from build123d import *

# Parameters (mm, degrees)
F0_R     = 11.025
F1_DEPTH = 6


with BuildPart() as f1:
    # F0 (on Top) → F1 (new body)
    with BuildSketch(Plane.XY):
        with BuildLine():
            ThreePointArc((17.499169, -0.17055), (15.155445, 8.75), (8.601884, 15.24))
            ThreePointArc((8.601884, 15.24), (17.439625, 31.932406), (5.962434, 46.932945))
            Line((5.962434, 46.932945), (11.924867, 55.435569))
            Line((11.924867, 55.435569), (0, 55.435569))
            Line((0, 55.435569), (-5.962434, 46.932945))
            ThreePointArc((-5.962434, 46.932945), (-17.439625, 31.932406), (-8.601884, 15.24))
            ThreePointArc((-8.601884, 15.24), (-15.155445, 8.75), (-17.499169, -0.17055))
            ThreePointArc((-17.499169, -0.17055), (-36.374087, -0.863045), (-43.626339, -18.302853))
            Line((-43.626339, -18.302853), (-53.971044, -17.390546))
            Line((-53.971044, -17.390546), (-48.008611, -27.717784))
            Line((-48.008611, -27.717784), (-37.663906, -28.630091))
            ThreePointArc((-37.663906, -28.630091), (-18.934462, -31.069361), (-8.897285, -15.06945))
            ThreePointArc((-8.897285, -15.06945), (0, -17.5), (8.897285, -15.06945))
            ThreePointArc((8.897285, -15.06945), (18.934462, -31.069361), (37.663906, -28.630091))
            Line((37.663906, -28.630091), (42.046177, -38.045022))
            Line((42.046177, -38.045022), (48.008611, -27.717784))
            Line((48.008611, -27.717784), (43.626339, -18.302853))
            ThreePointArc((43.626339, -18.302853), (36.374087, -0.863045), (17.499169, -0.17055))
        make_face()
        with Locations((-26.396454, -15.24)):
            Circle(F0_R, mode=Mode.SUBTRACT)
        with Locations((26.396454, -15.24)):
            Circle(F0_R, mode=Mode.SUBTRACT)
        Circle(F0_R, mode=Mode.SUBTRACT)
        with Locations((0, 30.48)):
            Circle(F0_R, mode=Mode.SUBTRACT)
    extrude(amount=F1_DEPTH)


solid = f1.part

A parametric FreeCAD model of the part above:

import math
import FreeCAD as App
import Part
import Sketcher

V = App.Vector
Q = App.Units.Quantity

doc = App.newDocument("Part")
body = doc.addObject("PartDesign::Body", "Body")

# Sketch on XY plane
sketch1 = doc.addObject("Sketcher::SketchObject", "Sketch")
body.addObject(sketch1)
sketch1.AttachmentSupport = (doc.XY_Plane, [""])
sketch1.MapMode = "FlatFace"
sketch1.addGeometry([
    Part.ArcOfCircle(Part.Circle(V(0.000001, 0.000001, 0), V(0, 0, 1), 17.499999), math.radians(-0.5584), math.radians(60.558399)),  # 0
    Part.ArcOfCircle(Part.Circle(V(-0.000001, 30.48, 0), V(0, 0, 1), 17.500001), math.radians(-60.558396), math.radians(70.079831)),  # 1
    Part.LineSegment(V(5.962434, 46.932945, 0), V(11.924867, 55.435569, 0)),  # 2
    Part.LineSegment(V(11.924867, 55.435569, 0), V(0, 55.435569, 0)),  # 3
    Part.LineSegment(V(0, 55.435569, 0), V(-5.962434, 46.932945, 0)),  # 4
    Part.ArcOfCircle(Part.Circle(V(0.000001, 30.48, 0), V(0, 0, 1), 17.500001), math.radians(109.920169), math.radians(240.558396)),  # 5
    Part.ArcOfCircle(Part.Circle(V(-0.000001, 0.000001, 0), V(0, 0, 1), 17.499999), math.radians(119.441601), math.radians(180.5584)),  # 6
    Part.ArcOfCircle(Part.Circle(V(-26.396454, -15.24, 0), V(0, 0, 1), 17.5), math.radians(59.441605), math.radians(190.07983)),  # 7
    Part.LineSegment(V(-43.626339, -18.302853, 0), V(-53.971044, -17.390546, 0)),  # 8
    Part.LineSegment(V(-53.971044, -17.390546, 0), V(-48.008611, -27.717784, 0)),  # 9
    Part.LineSegment(V(-48.008611, -27.717784, 0), V(-37.663906, -28.630091, 0)),  # 10
    Part.ArcOfCircle(Part.Circle(V(-26.396454, -15.239999, 0), V(0, 0, 1), 17.5), math.radians(-130.079834), math.radians(0.558395)),  # 11
    Part.ArcOfCircle(Part.Circle(V(0, 0.000001, 0), V(0, 0, 1), 17.500001), math.radians(-120.558395), math.radians(-59.441605)),  # 12
    Part.ArcOfCircle(Part.Circle(V(26.396454, -15.239999, 0), V(0, 0, 1), 17.5), math.radians(179.441605), math.radians(310.079834)),  # 13
    Part.LineSegment(V(37.663906, -28.630091, 0), V(42.046177, -38.045022, 0)),  # 14
    Part.LineSegment(V(42.046177, -38.045022, 0), V(48.008611, -27.717784, 0)),  # 15
    Part.LineSegment(V(48.008611, -27.717784, 0), V(43.626339, -18.302853, 0)),  # 16
    Part.ArcOfCircle(Part.Circle(V(26.396454, -15.24, 0), V(0, 0, 1), 17.5), math.radians(-10.07983), math.radians(120.558395)),  # 17
    Part.Circle(V(-26.396454, -15.24, 0), V(0, 0, 1), 11.025),  # 18
    Part.Circle(V(26.396454, -15.24, 0), V(0, 0, 1), 11.025),  # 19
    Part.Circle(V(0, 0, 0), V(0, 0, 1), 11.025),  # 20
    Part.Circle(V(0, 30.48, 0), V(0, 0, 1), 11.025),  # 21
], False)
sketch1.addConstraint([
    Sketcher.Constraint("Coincident", 0, 2, 1, 1),
    Sketcher.Constraint("Coincident", 1, 2, 2, 1),
    Sketcher.Constraint("Coincident", 2, 2, 3, 1),
    Sketcher.Constraint("Coincident", 3, 2, 4, 1),
    Sketcher.Constraint("Coincident", 4, 2, 5, 1),
    Sketcher.Constraint("Coincident", 5, 2, 6, 1),
    Sketcher.Constraint("Coincident", 6, 2, 7, 1),
    Sketcher.Constraint("Coincident", 7, 2, 8, 1),
    Sketcher.Constraint("Coincident", 8, 2, 9, 1),
    Sketcher.Constraint("Coincident", 9, 2, 10, 1),
    Sketcher.Constraint("Coincident", 10, 2, 11, 1),
    Sketcher.Constraint("Coincident", 11, 2, 12, 1),
    Sketcher.Constraint("Coincident", 12, 2, 13, 1),
    Sketcher.Constraint("Coincident", 13, 2, 14, 1),
    Sketcher.Constraint("Coincident", 14, 2, 15, 1),
    Sketcher.Constraint("Coincident", 15, 2, 16, 1),
    Sketcher.Constraint("Coincident", 16, 2, 17, 1),
    Sketcher.Constraint("Coincident", 17, 2, 0, 1),
    Sketcher.Constraint("Horizontal", 3),
    Sketcher.Constraint("Coincident", 0, 3, -1, 1),
    Sketcher.Constraint("Coincident", 6, 3, -1, 1),
    Sketcher.Constraint("Coincident", 12, 3, -1, 1),
    Sketcher.Constraint("Coincident", 20, 3, -1, 1),
    Sketcher.Constraint("Coincident", 5, 3, 1, 3),
    Sketcher.Constraint("Coincident", 11, 3, 7, 3),
    Sketcher.Constraint("Coincident", 17, 3, 13, 3),
    Sketcher.Constraint("Coincident", 18, 3, 7, 3),
    Sketcher.Constraint("Coincident", 19, 3, 13, 3),
    Sketcher.Constraint("Coincident", 21, 3, 1, 3),
    Sketcher.Constraint("PointOnObject", 1, 3, -2),
    Sketcher.Constraint("PointOnObject", 3, 2, -2),
    Sketcher.Constraint("Radius", 0, Q("17.499999 mm")),
    Sketcher.Constraint("Radius", 1, Q("17.500001 mm")),
    Sketcher.Constraint("Radius", 5, Q("17.500001 mm")),
    Sketcher.Constraint("Radius", 6, Q("17.499999 mm")),
    Sketcher.Constraint("Radius", 7, Q("17.5 mm")),
    Sketcher.Constraint("Radius", 11, Q("17.5 mm")),
    Sketcher.Constraint("Radius", 12, Q("17.500001 mm")),
    Sketcher.Constraint("Radius", 13, Q("17.5 mm")),
    Sketcher.Constraint("Radius", 17, Q("17.5 mm")),
    Sketcher.Constraint("Diameter", 18, Q("22.05 mm")),
    Sketcher.Constraint("Diameter", 19, Q("22.05 mm")),
    Sketcher.Constraint("Diameter", 20, Q("22.05 mm")),
    Sketcher.Constraint("Diameter", 21, Q("22.05 mm")),
    Sketcher.Constraint("DistanceY", -1, 1, 1, 3, Q("30.48 mm")),
    Sketcher.Constraint("DistanceY", 7, 3, -1, 1, Q("15.24 mm")),
    Sketcher.Constraint("DistanceY", 13, 3, -1, 1, Q("15.239999 mm")),
    Sketcher.Constraint("DistanceY", 11, 2, 6, 2, Q("14.8989 mm")),
    Sketcher.Constraint("DistanceY", 12, 2, 17, 2, Q("14.8989 mm")),
    Sketcher.Constraint("DistanceX", 3, 2, 3, 1, Q("11.924867 mm")),
    Sketcher.Constraint("DistanceY", -1, 1, 2, 2, Q("55.435569 mm")),
    Sketcher.Constraint("DistanceX", 7, 2, -1, 1, Q("43.626339 mm")),
    Sketcher.Constraint("DistanceX", 9, 2, -1, 1, Q("48.008611 mm")),
    Sketcher.Constraint("DistanceY", 10, 2, -1, 1, Q("28.630091 mm")),
    Sketcher.Constraint("DistanceY", 13, 2, -1, 1, Q("28.630091 mm")),
    Sketcher.Constraint("DistanceX", -1, 1, 15, 2, Q("48.008611 mm")),
    Sketcher.Constraint("DistanceX", -1, 1, 16, 2, Q("43.626339 mm")),
    Sketcher.Constraint("DistanceX", 1, 2, 0, 2, Q("2.63945 mm")),
    Sketcher.Constraint("DistanceX", 8, 2, 11, 3, Q("27.57459 mm")),
    Sketcher.Constraint("DistanceY", 9, 2, 7, 2, Q("9.414931 mm")),
    Sketcher.Constraint("DistanceY", 9, 2, 8, 2, Q("10.327238 mm")),
    Sketcher.Constraint("DistanceX", 13, 2, 14, 2, Q("4.382271 mm")),
    Sketcher.Constraint("DistanceY", 14, 2, 13, 2, Q("9.414931 mm")),
    Sketcher.Constraint("DistanceY", 14, 2, 15, 2, Q("10.327238 mm")),
    Sketcher.Constraint("Distance", 4, Q("10.384856 mm")),
])
pad1 = doc.addObject("PartDesign::Pad", "Pad")
body.addObject(pad1)
pad1.Profile = sketch1
pad1.Length = 6

doc.recompute()
